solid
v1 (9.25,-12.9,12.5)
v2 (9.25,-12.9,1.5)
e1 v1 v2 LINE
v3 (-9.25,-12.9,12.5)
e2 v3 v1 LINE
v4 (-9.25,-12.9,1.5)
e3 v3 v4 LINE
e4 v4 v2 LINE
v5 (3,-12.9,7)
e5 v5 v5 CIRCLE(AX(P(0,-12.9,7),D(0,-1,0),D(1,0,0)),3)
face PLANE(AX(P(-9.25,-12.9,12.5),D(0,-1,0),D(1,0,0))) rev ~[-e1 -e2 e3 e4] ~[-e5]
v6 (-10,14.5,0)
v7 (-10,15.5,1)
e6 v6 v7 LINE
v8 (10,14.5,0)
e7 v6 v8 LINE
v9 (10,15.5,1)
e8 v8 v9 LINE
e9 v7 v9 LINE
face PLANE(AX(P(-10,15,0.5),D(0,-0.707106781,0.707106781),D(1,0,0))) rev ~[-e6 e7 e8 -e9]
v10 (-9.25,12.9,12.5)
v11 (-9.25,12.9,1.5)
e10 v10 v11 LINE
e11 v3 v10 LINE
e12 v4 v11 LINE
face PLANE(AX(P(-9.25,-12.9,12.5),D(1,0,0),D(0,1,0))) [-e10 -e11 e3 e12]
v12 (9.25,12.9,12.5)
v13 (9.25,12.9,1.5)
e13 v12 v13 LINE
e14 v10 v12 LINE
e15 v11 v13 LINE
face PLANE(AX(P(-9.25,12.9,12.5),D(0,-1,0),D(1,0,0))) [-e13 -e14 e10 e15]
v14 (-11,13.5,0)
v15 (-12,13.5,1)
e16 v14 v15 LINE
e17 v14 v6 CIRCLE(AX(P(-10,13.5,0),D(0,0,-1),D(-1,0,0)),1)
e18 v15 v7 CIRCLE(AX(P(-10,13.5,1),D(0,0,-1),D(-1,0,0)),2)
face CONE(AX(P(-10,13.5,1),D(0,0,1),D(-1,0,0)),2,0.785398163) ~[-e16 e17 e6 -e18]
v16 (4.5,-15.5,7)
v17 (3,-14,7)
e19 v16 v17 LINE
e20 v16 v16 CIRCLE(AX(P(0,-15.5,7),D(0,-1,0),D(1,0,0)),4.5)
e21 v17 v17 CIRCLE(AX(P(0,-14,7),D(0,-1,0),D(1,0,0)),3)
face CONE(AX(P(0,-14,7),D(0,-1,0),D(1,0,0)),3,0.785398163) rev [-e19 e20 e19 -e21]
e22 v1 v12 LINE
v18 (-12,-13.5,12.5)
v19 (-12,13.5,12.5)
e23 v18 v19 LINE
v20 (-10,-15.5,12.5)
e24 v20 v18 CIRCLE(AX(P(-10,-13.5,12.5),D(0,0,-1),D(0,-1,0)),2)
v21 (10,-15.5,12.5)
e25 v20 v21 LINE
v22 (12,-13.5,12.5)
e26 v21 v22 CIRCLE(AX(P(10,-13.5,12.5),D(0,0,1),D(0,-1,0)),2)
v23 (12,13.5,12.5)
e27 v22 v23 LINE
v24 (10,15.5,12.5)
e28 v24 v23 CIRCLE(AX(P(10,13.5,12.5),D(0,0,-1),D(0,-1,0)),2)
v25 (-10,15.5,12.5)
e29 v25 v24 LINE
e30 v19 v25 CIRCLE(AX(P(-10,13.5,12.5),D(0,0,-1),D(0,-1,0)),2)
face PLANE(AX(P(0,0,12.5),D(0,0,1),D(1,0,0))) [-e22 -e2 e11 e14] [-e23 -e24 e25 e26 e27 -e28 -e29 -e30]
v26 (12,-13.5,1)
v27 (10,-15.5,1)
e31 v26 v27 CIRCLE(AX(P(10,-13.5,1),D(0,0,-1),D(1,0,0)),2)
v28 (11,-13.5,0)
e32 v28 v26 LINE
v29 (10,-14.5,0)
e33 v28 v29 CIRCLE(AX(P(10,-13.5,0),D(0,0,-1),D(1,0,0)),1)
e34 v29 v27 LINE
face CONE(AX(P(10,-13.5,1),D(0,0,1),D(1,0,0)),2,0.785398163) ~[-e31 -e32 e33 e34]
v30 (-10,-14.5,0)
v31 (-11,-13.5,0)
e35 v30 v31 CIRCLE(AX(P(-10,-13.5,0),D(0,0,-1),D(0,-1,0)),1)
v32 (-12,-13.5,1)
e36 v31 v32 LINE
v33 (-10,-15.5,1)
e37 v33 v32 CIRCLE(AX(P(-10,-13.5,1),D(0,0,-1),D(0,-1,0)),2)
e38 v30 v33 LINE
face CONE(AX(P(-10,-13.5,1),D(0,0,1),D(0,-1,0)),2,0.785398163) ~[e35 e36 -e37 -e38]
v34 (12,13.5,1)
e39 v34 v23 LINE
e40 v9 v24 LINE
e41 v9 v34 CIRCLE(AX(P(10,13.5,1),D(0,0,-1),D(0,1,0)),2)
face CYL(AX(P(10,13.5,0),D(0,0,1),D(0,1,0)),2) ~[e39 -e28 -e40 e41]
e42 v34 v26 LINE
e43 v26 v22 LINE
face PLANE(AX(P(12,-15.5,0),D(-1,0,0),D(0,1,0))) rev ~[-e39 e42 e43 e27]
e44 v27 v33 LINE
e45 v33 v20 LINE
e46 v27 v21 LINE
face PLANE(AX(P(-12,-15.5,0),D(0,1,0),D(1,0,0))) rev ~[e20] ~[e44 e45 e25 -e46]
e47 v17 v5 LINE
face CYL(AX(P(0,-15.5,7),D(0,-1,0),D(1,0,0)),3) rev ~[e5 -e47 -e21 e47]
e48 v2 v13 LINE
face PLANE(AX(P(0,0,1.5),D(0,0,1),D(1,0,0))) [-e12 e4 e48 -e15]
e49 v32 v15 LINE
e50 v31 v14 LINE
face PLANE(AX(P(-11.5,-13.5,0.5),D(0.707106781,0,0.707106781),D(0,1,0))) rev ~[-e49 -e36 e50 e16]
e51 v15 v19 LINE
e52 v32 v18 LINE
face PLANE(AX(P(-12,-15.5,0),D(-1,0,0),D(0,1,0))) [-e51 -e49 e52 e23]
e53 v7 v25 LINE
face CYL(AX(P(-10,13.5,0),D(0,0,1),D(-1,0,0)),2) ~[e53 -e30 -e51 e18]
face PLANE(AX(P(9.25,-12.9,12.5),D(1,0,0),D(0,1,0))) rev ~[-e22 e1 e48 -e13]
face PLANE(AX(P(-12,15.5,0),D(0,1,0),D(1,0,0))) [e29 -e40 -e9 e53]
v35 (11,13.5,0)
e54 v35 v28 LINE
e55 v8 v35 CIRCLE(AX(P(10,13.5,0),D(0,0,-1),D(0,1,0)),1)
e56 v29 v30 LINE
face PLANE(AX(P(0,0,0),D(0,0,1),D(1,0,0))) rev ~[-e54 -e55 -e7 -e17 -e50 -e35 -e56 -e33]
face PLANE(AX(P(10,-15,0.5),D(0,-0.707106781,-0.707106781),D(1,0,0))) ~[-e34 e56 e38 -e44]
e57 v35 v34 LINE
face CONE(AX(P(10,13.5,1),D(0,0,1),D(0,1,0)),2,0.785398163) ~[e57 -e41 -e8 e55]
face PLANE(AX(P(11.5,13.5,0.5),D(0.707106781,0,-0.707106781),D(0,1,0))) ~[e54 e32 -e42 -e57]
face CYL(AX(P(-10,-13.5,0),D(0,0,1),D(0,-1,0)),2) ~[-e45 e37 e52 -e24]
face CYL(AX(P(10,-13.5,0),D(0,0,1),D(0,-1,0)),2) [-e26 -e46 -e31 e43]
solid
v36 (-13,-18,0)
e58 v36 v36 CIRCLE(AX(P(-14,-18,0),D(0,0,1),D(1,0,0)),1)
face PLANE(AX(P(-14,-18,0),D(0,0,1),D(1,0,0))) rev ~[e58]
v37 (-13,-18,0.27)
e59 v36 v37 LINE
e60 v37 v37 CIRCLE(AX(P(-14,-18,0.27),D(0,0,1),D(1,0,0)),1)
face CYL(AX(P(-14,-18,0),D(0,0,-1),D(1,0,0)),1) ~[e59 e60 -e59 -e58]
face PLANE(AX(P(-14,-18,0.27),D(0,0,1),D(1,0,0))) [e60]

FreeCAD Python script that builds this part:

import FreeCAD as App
import Part
import Sketcher


def edges_at(feature, points):
    """Names of the edges that pass closest to the given points."""
    edges = feature.Shape.Edges
    near = lambda p: min(range(len(edges)), key=lambda i: edges[i].distToShape(Part.Vertex(*p))[0])
    return sorted({f"Edge{near(p) + 1}" for p in points})


def add_polygon(sketch, points):
    """Adds a closed chain of lines whose ends are joined by coincident constraints."""
    first, n = sketch.GeometryCount, len(points)
    for a, b in zip(points, points[1:] + points[:1]):
        sketch.addGeometry(Part.LineSegment(App.Vector(*a, 0), App.Vector(*b, 0)), False)
    for i in range(n):
        sketch.addConstraint(Sketcher.Constraint("Coincident", first + i, 2, first + (i + 1) % n, 1))

doc = App.newDocument("Part")
body = doc.addObject("PartDesign::Body", "Body")

# Sketch on XY plane
sketch1 = body.newObject("Sketcher::SketchObject", "Sketch")
sketch1.AttachmentSupport = (doc.getObject("XY_Plane"), [""])
sketch1.MapMode = "FlatFace"
add_polygon(sketch1, [(-12, 16), (-12, -16), (12, -16), (12, 16)])  # lines 0-3
sketch1.addConstraint(Sketcher.Constraint("Vertical", 0))
sketch1.addConstraint(Sketcher.Constraint("Horizontal", 1))
sketch1.addConstraint(Sketcher.Constraint("Vertical", 2))
sketch1.addConstraint(Sketcher.Constraint("Horizontal", 3))
sketch1.addConstraint(Sketcher.Constraint("Symmetric", 0, 2, 2, 2, -1, 1))
sketch1.addConstraint(Sketcher.Constraint("DistanceX", 1, 1, 1, 2, 24.0))
sketch1.addConstraint(Sketcher.Constraint("DistanceY", 0, 2, 0, 1, 31.0))
pad1 = body.newObject("PartDesign::Pad", "Pad")
pad1.Profile = sketch1
pad1.Length = 12.5

# Sketch on XZ plane
sketch2 = body.newObject("Sketcher::SketchObject", "Sketch001")
sketch2.AttachmentSupport = (doc.getObject("XZ_Plane"), [""])
sketch2.MapMode = "FlatFace"
sketch2.AttachmentOffset = App.Placement(App.Vector(0, 0, 15.5), App.Rotation())
sketch2.addGeometry(Part.Circle(App.Vector(0, 7, 0), App.Vector(0, 0, 1), 3), False)
sketch2.addConstraint(Sketcher.Constraint("PointOnObject", 0, 3, -2))
sketch2.addConstraint(Sketcher.Constraint("Diameter", 0, 6.0))
sketch2.addConstraint(Sketcher.Constraint("DistanceY", -1, 1, 0, 3, 7.0))
pocket1 = body.newObject("PartDesign::Pocket", "Pocket")
pocket1.Profile = sketch2
pocket1.Length = 3

# Sketch on XY plane
sketch3 = body.newObject("Sketcher::SketchObject", "Sketch002")
sketch3.AttachmentSupport = (doc.getObject("XY_Plane"), [""])
sketch3.MapMode = "FlatFace"
sketch3.AttachmentOffset = App.Placement(App.Vector(0, 0, 12.5), App.Rotation())
add_polygon(sketch3, [(-9, 13), (-9, -13), (9, -13), (9, 13)])  # lines 0-3
sketch3.addConstraint(Sketcher.Constraint("Vertical", 0))
sketch3.addConstraint(Sketcher.Constraint("Horizontal", 1))
sketch3.addConstraint(Sketcher.Constraint("Vertical", 2))
sketch3.addConstraint(Sketcher.Constraint("Horizontal", 3))
sketch3.addConstraint(Sketcher.Constraint("Symmetric", 0, 2, 2, 2, -1, 1))
sketch3.addConstraint(Sketcher.Constraint("DistanceX", 1, 1, 1, 2, 18.5))
sketch3.addConstraint(Sketcher.Constraint("DistanceY", 0, 2, 0, 1, 25.8))
pocket2 = body.newObject("PartDesign::Pocket", "Pocket001")
pocket2.Profile = sketch3
pocket2.Length = 11
doc.recompute()

chamfer = body.newObject("PartDesign::Chamfer", "Chamfer")
chamfer.Base = (pocket2, edges_at(pocket2, [(-3, -15.5, 7)]))
chamfer.Size = 1.5
doc.recompute()

fillet = body.newObject("PartDesign::Fillet", "Fillet")
fillet.Base = (chamfer, edges_at(chamfer, [(12, -15.5, 6.25)]))
fillet.Radius = 2
doc.recompute()

fillet2 = body.newObject("PartDesign::Fillet", "Fillet001")
fillet2.Base = (fillet, edges_at(fillet, [(-12, -15.5, 6.25)]))
fillet2.Radius = 2
doc.recompute()

fillet3 = body.newObject("PartDesign::Fillet", "Fillet002")
fillet3.Base = (fillet2, edges_at(fillet2, [(-12, 15.5, 6.25)]))
fillet3.Radius = 2
doc.recompute()

fillet4 = body.newObject("PartDesign::Fillet", "Fillet003")
fillet4.Base = (fillet3, edges_at(fillet3, [(12, 15.5, 6.25)]))
fillet4.Radius = 2
doc.recompute()

chamfer2 = body.newObject("PartDesign::Chamfer", "Chamfer001")
chamfer2.Base = (fillet4, edges_at(fillet4, [(-12, 0, 0)]))
chamfer2.Size = 1
body2 = doc.addObject("PartDesign::Body", "Body001")

# Sketch on XY plane
sketch4 = body2.newObject("Sketcher::SketchObject", "Sketch003")
sketch4.AttachmentSupport = (doc.getObject("XY_Plane001"), [""])
sketch4.MapMode = "FlatFace"
sketch4.addGeometry(Part.Circle(App.Vector(-14, -18, 0), App.Vector(0, 0, 1), 1), False)
sketch4.addConstraint(Sketcher.Constraint("Diameter", 0, 2.0))
sketch4.addConstraint(Sketcher.Constraint("DistanceX", 0, 3, -1, 1, 14.0))
sketch4.addConstraint(Sketcher.Constraint("DistanceY", 0, 3, -1, 1, 18.0))
pad2 = body2.newObject("PartDesign::Pad", "Pad001")
pad2.Profile = sketch4
pad2.Length = 0.27

doc.recompute()
